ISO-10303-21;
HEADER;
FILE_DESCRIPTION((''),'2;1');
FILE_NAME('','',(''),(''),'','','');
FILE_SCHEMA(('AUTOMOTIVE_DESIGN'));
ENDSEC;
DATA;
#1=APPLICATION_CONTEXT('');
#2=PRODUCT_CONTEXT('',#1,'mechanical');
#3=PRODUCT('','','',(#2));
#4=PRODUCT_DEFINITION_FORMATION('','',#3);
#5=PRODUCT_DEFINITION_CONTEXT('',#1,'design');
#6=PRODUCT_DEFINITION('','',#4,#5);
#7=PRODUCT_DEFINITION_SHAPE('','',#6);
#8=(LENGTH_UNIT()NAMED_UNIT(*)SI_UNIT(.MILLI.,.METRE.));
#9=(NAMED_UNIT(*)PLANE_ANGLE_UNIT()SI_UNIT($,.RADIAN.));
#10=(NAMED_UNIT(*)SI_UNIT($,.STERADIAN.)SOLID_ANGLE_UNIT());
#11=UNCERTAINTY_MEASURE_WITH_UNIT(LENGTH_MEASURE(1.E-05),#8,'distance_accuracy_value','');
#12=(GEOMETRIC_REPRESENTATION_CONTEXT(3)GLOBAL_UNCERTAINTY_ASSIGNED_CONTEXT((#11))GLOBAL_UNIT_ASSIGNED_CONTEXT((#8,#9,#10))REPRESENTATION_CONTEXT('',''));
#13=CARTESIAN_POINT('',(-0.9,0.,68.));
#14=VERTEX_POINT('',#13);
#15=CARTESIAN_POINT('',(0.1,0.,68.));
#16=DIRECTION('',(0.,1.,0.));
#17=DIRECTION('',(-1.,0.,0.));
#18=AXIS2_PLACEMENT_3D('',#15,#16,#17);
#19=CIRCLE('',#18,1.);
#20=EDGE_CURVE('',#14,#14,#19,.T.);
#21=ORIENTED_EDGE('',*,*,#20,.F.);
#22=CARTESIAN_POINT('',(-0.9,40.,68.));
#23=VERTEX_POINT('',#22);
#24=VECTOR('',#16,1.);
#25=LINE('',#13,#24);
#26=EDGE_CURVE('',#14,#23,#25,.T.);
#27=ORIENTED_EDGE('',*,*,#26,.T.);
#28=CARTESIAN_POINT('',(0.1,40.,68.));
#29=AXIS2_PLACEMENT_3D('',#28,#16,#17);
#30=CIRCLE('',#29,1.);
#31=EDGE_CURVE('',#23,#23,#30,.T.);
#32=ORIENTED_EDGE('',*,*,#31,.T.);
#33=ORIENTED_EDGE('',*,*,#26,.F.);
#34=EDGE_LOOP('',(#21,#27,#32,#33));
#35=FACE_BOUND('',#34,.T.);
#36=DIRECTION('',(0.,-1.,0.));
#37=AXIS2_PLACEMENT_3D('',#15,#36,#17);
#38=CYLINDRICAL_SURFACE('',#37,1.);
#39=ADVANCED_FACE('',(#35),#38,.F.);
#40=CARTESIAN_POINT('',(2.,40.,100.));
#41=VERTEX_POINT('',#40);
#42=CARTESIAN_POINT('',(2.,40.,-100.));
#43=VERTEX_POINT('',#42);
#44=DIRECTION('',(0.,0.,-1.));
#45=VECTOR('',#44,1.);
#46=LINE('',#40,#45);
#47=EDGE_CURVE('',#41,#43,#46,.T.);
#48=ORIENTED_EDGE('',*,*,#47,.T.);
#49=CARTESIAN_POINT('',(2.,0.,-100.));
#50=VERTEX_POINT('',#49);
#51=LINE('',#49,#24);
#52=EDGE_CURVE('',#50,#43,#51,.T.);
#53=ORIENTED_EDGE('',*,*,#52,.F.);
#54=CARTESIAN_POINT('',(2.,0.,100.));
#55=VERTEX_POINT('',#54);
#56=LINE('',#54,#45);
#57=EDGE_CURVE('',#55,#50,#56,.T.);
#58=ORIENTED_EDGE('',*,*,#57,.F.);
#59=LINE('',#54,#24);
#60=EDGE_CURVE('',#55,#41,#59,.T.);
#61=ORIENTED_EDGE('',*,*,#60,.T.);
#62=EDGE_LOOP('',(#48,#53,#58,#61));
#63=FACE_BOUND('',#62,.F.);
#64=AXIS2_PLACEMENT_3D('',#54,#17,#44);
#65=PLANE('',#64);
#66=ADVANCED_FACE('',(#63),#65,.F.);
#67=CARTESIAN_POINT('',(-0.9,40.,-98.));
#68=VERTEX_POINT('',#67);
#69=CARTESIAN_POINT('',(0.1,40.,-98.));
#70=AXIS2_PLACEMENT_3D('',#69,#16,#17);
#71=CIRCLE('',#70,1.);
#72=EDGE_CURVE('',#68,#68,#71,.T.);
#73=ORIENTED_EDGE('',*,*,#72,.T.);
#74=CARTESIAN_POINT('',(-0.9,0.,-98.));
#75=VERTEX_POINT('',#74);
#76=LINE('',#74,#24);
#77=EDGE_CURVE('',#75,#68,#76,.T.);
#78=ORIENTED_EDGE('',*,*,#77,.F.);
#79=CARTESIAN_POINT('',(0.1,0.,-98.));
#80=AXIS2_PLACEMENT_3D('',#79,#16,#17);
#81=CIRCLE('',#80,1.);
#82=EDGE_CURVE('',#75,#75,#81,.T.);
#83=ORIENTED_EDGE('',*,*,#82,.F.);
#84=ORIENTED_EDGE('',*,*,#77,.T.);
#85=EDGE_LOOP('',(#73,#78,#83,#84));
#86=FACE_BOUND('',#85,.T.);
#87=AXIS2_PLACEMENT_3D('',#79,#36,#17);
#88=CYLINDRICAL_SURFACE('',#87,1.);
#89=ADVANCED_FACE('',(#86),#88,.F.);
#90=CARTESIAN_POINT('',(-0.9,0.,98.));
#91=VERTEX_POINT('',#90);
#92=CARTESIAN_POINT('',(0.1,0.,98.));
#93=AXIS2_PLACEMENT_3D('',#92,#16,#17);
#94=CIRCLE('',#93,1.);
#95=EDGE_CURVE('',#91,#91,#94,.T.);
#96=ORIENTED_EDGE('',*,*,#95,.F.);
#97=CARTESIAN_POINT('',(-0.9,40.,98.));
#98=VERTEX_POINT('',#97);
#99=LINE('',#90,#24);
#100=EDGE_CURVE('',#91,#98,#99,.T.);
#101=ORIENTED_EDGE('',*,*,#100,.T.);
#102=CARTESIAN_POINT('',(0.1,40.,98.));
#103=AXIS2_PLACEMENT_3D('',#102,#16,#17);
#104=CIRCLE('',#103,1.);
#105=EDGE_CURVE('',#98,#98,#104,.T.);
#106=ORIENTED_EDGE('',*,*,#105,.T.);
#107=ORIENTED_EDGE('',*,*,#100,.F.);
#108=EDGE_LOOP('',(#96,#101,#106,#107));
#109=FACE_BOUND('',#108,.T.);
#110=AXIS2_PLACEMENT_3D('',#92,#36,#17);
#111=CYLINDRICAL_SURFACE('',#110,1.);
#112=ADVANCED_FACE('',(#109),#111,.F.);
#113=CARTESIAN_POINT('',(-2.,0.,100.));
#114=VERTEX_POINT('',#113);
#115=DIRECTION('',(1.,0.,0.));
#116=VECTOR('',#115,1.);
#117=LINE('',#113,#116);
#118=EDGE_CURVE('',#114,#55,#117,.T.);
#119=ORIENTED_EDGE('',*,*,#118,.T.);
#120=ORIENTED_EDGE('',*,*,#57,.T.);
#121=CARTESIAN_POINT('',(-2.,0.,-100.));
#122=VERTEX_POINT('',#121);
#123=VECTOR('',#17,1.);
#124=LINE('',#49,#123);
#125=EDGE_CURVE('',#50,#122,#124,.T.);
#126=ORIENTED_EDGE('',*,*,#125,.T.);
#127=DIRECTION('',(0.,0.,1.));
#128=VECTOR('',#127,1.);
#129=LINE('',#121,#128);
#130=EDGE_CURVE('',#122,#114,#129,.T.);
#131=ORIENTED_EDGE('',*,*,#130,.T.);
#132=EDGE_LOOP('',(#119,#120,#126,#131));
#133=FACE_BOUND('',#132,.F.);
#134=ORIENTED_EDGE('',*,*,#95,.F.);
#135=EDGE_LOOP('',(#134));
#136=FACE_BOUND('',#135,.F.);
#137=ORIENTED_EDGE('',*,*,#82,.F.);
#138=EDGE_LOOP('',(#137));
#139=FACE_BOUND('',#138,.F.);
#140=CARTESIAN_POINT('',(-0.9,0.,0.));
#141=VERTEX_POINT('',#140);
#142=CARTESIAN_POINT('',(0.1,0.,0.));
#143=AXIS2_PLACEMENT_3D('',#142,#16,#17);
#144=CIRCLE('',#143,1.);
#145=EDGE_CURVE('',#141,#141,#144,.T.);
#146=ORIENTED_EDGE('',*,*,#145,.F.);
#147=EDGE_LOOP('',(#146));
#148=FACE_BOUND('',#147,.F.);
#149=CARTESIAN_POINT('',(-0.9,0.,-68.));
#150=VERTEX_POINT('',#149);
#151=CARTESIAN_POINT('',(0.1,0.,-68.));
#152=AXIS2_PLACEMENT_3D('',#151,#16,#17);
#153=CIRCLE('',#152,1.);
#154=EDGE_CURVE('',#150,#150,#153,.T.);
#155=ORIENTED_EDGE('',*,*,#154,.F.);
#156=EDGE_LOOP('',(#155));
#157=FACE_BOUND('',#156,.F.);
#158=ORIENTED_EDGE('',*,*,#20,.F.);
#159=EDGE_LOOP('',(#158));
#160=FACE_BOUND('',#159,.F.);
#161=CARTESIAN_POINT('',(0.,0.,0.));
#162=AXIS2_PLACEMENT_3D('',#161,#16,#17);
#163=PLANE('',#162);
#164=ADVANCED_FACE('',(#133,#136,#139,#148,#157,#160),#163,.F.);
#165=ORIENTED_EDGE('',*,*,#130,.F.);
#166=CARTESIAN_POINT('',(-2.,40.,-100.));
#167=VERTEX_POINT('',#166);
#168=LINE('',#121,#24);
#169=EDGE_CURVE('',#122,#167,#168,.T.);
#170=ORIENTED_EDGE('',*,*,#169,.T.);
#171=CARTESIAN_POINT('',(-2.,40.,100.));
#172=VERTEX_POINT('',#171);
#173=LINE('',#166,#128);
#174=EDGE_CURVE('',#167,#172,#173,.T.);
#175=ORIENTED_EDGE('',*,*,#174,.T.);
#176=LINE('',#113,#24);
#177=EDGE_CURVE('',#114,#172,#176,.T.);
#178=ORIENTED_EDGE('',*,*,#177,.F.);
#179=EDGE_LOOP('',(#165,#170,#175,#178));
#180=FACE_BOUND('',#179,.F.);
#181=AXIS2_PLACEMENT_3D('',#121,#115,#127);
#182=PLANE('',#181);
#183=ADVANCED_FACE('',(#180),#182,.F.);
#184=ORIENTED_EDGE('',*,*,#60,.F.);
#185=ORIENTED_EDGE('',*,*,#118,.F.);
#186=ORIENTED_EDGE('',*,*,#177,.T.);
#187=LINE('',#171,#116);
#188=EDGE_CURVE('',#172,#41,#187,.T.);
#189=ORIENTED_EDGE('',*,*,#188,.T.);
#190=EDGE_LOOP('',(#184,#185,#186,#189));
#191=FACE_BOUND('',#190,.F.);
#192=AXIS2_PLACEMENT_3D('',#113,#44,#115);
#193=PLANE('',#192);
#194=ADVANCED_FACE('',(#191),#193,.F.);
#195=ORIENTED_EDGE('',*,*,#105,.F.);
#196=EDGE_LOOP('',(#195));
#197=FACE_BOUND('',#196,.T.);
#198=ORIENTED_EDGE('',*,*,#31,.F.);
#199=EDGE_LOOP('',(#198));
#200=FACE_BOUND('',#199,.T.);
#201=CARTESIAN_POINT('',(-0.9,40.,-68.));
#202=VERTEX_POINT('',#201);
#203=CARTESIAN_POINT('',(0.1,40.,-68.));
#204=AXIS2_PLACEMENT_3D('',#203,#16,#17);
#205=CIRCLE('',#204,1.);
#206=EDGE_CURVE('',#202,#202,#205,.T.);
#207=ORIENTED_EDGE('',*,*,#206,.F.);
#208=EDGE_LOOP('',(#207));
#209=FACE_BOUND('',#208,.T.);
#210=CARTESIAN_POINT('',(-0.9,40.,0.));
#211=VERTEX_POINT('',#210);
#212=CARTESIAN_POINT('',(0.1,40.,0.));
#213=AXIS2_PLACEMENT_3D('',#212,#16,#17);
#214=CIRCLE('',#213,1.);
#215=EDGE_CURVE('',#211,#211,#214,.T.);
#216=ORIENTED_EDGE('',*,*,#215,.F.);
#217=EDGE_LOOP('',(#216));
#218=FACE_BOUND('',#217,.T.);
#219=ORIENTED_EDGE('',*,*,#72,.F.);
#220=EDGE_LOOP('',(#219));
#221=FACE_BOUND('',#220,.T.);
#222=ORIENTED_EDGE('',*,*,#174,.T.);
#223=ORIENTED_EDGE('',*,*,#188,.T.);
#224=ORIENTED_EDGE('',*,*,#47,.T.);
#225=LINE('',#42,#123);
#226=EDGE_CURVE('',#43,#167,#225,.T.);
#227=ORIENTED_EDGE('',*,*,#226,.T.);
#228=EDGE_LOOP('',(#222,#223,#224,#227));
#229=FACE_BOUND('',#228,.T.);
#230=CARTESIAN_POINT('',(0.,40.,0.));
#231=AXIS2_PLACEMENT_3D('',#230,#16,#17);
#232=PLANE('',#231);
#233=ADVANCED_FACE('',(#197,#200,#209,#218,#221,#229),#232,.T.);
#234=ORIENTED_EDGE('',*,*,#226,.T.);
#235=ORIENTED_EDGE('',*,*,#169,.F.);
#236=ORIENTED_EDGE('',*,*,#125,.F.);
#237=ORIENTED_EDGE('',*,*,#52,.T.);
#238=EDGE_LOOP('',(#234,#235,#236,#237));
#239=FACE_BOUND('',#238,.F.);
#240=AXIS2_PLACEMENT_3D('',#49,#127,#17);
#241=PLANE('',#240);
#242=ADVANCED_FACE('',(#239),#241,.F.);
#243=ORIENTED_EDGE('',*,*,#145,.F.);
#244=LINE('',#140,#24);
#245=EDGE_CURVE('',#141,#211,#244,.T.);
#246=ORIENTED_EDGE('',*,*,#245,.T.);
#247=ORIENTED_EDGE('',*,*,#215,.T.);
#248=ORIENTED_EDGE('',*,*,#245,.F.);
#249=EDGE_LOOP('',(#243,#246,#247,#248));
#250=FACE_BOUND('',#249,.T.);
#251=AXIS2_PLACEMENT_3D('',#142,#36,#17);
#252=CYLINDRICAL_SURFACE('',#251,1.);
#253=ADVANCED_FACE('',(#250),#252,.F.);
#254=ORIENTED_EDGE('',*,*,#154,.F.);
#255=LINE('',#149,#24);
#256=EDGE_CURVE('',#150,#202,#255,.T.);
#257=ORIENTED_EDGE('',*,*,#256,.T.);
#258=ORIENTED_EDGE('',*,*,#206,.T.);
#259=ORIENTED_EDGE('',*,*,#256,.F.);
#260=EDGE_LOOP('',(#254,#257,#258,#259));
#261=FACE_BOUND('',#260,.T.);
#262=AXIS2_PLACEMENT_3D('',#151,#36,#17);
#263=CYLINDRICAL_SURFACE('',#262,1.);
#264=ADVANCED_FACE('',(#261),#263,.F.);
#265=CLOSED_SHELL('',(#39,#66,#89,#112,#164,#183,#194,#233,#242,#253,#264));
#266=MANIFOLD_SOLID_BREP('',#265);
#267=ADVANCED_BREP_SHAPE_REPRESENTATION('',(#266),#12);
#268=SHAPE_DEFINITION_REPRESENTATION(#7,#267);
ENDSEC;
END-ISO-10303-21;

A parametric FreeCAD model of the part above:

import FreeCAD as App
import Part
import Sketcher
from FreeCAD import Vector
Q = App.Units.Quantity

doc = App.newDocument("Part")
body = doc.addObject("PartDesign::Body", "Body")

sketch1 = body.newObject("Sketcher::SketchObject", "Sketch")
sketch1.AttachmentSupport = (doc.getObject("XZ_Plane"), [""])
sketch1.MapMode = "FlatFace"
sketch1.addGeometry([
    Part.LineSegment(Vector(2, 100, 0), Vector(2, -100, 0)),
    Part.LineSegment(Vector(2, -100, 0), Vector(-2, -100, 0)),
    Part.LineSegment(Vector(-2, -100, 0), Vector(-2, 100, 0)),
    Part.LineSegment(Vector(-2, 100, 0), Vector(2, 100, 0)),
    Part.Circle(Vector(0.1, -98, 0), Vector(0, 0, 1), 1),
    Part.Circle(Vector(0.1, -68, 0), Vector(0, 0, 1), 1),
    Part.Circle(Vector(0.1, 0, 0), Vector(0, 0, 1), 1),
    Part.Circle(Vector(0.1, 68, 0), Vector(0, 0, 1), 1),
    Part.Circle(Vector(0.1, 98, 0), Vector(0, 0, 1), 1),
], False)
sketch1.addConstraint([
    Sketcher.Constraint("Coincident", 0, 2, 1, 1),
    Sketcher.Constraint("Coincident", 1, 2, 2, 1),
    Sketcher.Constraint("Coincident", 2, 2, 3, 1),
    Sketcher.Constraint("Coincident", 3, 2, 0, 1),
    Sketcher.Constraint("Vertical", 0),
    Sketcher.Constraint("Horizontal", 1),
    Sketcher.Constraint("Vertical", 2),
    Sketcher.Constraint("Horizontal", 3),
    Sketcher.Constraint("Equal", 4, 5),
    Sketcher.Constraint("Equal", 5, 6),
    Sketcher.Constraint("Equal", 6, 7),
    Sketcher.Constraint("Equal", 7, 8),
    Sketcher.Constraint("Symmetric", 0, 2, 2, 2, -1, 1),
    Sketcher.Constraint("Symmetric", 5, 3, 7, 3, -1),
    Sketcher.Constraint("Symmetric", 4, 3, 8, 3, -1),
    Sketcher.Constraint("PointOnObject", 6, 3, -1),
    Sketcher.Constraint("Vertical", 4, 3, 5, 3),
    Sketcher.Constraint("Vertical", 5, 3, 6, 3),
    Sketcher.Constraint("Diameter", 4, Q("2 mm")),
    Sketcher.Constraint("DistanceX", 1, 2, 1, 1, Q("4 mm")),
    Sketcher.Constraint("DistanceY", 0, 2, 0, 1, Q("200 mm")),
    Sketcher.Constraint("DistanceY", 0, 2, 4, 3, Q("2 mm")),
    Sketcher.Constraint("DistanceY", 0, 2, 5, 3, Q("32 mm")),
    Sketcher.Constraint("DistanceX", 1, 2, 4, 3, Q("2.1 mm")),
])
pad1 = body.newObject("PartDesign::Pad", "Pad")
pad1.Profile = sketch1
pad1.Length = 40
pad1.Reversed = True

doc.recompute()
